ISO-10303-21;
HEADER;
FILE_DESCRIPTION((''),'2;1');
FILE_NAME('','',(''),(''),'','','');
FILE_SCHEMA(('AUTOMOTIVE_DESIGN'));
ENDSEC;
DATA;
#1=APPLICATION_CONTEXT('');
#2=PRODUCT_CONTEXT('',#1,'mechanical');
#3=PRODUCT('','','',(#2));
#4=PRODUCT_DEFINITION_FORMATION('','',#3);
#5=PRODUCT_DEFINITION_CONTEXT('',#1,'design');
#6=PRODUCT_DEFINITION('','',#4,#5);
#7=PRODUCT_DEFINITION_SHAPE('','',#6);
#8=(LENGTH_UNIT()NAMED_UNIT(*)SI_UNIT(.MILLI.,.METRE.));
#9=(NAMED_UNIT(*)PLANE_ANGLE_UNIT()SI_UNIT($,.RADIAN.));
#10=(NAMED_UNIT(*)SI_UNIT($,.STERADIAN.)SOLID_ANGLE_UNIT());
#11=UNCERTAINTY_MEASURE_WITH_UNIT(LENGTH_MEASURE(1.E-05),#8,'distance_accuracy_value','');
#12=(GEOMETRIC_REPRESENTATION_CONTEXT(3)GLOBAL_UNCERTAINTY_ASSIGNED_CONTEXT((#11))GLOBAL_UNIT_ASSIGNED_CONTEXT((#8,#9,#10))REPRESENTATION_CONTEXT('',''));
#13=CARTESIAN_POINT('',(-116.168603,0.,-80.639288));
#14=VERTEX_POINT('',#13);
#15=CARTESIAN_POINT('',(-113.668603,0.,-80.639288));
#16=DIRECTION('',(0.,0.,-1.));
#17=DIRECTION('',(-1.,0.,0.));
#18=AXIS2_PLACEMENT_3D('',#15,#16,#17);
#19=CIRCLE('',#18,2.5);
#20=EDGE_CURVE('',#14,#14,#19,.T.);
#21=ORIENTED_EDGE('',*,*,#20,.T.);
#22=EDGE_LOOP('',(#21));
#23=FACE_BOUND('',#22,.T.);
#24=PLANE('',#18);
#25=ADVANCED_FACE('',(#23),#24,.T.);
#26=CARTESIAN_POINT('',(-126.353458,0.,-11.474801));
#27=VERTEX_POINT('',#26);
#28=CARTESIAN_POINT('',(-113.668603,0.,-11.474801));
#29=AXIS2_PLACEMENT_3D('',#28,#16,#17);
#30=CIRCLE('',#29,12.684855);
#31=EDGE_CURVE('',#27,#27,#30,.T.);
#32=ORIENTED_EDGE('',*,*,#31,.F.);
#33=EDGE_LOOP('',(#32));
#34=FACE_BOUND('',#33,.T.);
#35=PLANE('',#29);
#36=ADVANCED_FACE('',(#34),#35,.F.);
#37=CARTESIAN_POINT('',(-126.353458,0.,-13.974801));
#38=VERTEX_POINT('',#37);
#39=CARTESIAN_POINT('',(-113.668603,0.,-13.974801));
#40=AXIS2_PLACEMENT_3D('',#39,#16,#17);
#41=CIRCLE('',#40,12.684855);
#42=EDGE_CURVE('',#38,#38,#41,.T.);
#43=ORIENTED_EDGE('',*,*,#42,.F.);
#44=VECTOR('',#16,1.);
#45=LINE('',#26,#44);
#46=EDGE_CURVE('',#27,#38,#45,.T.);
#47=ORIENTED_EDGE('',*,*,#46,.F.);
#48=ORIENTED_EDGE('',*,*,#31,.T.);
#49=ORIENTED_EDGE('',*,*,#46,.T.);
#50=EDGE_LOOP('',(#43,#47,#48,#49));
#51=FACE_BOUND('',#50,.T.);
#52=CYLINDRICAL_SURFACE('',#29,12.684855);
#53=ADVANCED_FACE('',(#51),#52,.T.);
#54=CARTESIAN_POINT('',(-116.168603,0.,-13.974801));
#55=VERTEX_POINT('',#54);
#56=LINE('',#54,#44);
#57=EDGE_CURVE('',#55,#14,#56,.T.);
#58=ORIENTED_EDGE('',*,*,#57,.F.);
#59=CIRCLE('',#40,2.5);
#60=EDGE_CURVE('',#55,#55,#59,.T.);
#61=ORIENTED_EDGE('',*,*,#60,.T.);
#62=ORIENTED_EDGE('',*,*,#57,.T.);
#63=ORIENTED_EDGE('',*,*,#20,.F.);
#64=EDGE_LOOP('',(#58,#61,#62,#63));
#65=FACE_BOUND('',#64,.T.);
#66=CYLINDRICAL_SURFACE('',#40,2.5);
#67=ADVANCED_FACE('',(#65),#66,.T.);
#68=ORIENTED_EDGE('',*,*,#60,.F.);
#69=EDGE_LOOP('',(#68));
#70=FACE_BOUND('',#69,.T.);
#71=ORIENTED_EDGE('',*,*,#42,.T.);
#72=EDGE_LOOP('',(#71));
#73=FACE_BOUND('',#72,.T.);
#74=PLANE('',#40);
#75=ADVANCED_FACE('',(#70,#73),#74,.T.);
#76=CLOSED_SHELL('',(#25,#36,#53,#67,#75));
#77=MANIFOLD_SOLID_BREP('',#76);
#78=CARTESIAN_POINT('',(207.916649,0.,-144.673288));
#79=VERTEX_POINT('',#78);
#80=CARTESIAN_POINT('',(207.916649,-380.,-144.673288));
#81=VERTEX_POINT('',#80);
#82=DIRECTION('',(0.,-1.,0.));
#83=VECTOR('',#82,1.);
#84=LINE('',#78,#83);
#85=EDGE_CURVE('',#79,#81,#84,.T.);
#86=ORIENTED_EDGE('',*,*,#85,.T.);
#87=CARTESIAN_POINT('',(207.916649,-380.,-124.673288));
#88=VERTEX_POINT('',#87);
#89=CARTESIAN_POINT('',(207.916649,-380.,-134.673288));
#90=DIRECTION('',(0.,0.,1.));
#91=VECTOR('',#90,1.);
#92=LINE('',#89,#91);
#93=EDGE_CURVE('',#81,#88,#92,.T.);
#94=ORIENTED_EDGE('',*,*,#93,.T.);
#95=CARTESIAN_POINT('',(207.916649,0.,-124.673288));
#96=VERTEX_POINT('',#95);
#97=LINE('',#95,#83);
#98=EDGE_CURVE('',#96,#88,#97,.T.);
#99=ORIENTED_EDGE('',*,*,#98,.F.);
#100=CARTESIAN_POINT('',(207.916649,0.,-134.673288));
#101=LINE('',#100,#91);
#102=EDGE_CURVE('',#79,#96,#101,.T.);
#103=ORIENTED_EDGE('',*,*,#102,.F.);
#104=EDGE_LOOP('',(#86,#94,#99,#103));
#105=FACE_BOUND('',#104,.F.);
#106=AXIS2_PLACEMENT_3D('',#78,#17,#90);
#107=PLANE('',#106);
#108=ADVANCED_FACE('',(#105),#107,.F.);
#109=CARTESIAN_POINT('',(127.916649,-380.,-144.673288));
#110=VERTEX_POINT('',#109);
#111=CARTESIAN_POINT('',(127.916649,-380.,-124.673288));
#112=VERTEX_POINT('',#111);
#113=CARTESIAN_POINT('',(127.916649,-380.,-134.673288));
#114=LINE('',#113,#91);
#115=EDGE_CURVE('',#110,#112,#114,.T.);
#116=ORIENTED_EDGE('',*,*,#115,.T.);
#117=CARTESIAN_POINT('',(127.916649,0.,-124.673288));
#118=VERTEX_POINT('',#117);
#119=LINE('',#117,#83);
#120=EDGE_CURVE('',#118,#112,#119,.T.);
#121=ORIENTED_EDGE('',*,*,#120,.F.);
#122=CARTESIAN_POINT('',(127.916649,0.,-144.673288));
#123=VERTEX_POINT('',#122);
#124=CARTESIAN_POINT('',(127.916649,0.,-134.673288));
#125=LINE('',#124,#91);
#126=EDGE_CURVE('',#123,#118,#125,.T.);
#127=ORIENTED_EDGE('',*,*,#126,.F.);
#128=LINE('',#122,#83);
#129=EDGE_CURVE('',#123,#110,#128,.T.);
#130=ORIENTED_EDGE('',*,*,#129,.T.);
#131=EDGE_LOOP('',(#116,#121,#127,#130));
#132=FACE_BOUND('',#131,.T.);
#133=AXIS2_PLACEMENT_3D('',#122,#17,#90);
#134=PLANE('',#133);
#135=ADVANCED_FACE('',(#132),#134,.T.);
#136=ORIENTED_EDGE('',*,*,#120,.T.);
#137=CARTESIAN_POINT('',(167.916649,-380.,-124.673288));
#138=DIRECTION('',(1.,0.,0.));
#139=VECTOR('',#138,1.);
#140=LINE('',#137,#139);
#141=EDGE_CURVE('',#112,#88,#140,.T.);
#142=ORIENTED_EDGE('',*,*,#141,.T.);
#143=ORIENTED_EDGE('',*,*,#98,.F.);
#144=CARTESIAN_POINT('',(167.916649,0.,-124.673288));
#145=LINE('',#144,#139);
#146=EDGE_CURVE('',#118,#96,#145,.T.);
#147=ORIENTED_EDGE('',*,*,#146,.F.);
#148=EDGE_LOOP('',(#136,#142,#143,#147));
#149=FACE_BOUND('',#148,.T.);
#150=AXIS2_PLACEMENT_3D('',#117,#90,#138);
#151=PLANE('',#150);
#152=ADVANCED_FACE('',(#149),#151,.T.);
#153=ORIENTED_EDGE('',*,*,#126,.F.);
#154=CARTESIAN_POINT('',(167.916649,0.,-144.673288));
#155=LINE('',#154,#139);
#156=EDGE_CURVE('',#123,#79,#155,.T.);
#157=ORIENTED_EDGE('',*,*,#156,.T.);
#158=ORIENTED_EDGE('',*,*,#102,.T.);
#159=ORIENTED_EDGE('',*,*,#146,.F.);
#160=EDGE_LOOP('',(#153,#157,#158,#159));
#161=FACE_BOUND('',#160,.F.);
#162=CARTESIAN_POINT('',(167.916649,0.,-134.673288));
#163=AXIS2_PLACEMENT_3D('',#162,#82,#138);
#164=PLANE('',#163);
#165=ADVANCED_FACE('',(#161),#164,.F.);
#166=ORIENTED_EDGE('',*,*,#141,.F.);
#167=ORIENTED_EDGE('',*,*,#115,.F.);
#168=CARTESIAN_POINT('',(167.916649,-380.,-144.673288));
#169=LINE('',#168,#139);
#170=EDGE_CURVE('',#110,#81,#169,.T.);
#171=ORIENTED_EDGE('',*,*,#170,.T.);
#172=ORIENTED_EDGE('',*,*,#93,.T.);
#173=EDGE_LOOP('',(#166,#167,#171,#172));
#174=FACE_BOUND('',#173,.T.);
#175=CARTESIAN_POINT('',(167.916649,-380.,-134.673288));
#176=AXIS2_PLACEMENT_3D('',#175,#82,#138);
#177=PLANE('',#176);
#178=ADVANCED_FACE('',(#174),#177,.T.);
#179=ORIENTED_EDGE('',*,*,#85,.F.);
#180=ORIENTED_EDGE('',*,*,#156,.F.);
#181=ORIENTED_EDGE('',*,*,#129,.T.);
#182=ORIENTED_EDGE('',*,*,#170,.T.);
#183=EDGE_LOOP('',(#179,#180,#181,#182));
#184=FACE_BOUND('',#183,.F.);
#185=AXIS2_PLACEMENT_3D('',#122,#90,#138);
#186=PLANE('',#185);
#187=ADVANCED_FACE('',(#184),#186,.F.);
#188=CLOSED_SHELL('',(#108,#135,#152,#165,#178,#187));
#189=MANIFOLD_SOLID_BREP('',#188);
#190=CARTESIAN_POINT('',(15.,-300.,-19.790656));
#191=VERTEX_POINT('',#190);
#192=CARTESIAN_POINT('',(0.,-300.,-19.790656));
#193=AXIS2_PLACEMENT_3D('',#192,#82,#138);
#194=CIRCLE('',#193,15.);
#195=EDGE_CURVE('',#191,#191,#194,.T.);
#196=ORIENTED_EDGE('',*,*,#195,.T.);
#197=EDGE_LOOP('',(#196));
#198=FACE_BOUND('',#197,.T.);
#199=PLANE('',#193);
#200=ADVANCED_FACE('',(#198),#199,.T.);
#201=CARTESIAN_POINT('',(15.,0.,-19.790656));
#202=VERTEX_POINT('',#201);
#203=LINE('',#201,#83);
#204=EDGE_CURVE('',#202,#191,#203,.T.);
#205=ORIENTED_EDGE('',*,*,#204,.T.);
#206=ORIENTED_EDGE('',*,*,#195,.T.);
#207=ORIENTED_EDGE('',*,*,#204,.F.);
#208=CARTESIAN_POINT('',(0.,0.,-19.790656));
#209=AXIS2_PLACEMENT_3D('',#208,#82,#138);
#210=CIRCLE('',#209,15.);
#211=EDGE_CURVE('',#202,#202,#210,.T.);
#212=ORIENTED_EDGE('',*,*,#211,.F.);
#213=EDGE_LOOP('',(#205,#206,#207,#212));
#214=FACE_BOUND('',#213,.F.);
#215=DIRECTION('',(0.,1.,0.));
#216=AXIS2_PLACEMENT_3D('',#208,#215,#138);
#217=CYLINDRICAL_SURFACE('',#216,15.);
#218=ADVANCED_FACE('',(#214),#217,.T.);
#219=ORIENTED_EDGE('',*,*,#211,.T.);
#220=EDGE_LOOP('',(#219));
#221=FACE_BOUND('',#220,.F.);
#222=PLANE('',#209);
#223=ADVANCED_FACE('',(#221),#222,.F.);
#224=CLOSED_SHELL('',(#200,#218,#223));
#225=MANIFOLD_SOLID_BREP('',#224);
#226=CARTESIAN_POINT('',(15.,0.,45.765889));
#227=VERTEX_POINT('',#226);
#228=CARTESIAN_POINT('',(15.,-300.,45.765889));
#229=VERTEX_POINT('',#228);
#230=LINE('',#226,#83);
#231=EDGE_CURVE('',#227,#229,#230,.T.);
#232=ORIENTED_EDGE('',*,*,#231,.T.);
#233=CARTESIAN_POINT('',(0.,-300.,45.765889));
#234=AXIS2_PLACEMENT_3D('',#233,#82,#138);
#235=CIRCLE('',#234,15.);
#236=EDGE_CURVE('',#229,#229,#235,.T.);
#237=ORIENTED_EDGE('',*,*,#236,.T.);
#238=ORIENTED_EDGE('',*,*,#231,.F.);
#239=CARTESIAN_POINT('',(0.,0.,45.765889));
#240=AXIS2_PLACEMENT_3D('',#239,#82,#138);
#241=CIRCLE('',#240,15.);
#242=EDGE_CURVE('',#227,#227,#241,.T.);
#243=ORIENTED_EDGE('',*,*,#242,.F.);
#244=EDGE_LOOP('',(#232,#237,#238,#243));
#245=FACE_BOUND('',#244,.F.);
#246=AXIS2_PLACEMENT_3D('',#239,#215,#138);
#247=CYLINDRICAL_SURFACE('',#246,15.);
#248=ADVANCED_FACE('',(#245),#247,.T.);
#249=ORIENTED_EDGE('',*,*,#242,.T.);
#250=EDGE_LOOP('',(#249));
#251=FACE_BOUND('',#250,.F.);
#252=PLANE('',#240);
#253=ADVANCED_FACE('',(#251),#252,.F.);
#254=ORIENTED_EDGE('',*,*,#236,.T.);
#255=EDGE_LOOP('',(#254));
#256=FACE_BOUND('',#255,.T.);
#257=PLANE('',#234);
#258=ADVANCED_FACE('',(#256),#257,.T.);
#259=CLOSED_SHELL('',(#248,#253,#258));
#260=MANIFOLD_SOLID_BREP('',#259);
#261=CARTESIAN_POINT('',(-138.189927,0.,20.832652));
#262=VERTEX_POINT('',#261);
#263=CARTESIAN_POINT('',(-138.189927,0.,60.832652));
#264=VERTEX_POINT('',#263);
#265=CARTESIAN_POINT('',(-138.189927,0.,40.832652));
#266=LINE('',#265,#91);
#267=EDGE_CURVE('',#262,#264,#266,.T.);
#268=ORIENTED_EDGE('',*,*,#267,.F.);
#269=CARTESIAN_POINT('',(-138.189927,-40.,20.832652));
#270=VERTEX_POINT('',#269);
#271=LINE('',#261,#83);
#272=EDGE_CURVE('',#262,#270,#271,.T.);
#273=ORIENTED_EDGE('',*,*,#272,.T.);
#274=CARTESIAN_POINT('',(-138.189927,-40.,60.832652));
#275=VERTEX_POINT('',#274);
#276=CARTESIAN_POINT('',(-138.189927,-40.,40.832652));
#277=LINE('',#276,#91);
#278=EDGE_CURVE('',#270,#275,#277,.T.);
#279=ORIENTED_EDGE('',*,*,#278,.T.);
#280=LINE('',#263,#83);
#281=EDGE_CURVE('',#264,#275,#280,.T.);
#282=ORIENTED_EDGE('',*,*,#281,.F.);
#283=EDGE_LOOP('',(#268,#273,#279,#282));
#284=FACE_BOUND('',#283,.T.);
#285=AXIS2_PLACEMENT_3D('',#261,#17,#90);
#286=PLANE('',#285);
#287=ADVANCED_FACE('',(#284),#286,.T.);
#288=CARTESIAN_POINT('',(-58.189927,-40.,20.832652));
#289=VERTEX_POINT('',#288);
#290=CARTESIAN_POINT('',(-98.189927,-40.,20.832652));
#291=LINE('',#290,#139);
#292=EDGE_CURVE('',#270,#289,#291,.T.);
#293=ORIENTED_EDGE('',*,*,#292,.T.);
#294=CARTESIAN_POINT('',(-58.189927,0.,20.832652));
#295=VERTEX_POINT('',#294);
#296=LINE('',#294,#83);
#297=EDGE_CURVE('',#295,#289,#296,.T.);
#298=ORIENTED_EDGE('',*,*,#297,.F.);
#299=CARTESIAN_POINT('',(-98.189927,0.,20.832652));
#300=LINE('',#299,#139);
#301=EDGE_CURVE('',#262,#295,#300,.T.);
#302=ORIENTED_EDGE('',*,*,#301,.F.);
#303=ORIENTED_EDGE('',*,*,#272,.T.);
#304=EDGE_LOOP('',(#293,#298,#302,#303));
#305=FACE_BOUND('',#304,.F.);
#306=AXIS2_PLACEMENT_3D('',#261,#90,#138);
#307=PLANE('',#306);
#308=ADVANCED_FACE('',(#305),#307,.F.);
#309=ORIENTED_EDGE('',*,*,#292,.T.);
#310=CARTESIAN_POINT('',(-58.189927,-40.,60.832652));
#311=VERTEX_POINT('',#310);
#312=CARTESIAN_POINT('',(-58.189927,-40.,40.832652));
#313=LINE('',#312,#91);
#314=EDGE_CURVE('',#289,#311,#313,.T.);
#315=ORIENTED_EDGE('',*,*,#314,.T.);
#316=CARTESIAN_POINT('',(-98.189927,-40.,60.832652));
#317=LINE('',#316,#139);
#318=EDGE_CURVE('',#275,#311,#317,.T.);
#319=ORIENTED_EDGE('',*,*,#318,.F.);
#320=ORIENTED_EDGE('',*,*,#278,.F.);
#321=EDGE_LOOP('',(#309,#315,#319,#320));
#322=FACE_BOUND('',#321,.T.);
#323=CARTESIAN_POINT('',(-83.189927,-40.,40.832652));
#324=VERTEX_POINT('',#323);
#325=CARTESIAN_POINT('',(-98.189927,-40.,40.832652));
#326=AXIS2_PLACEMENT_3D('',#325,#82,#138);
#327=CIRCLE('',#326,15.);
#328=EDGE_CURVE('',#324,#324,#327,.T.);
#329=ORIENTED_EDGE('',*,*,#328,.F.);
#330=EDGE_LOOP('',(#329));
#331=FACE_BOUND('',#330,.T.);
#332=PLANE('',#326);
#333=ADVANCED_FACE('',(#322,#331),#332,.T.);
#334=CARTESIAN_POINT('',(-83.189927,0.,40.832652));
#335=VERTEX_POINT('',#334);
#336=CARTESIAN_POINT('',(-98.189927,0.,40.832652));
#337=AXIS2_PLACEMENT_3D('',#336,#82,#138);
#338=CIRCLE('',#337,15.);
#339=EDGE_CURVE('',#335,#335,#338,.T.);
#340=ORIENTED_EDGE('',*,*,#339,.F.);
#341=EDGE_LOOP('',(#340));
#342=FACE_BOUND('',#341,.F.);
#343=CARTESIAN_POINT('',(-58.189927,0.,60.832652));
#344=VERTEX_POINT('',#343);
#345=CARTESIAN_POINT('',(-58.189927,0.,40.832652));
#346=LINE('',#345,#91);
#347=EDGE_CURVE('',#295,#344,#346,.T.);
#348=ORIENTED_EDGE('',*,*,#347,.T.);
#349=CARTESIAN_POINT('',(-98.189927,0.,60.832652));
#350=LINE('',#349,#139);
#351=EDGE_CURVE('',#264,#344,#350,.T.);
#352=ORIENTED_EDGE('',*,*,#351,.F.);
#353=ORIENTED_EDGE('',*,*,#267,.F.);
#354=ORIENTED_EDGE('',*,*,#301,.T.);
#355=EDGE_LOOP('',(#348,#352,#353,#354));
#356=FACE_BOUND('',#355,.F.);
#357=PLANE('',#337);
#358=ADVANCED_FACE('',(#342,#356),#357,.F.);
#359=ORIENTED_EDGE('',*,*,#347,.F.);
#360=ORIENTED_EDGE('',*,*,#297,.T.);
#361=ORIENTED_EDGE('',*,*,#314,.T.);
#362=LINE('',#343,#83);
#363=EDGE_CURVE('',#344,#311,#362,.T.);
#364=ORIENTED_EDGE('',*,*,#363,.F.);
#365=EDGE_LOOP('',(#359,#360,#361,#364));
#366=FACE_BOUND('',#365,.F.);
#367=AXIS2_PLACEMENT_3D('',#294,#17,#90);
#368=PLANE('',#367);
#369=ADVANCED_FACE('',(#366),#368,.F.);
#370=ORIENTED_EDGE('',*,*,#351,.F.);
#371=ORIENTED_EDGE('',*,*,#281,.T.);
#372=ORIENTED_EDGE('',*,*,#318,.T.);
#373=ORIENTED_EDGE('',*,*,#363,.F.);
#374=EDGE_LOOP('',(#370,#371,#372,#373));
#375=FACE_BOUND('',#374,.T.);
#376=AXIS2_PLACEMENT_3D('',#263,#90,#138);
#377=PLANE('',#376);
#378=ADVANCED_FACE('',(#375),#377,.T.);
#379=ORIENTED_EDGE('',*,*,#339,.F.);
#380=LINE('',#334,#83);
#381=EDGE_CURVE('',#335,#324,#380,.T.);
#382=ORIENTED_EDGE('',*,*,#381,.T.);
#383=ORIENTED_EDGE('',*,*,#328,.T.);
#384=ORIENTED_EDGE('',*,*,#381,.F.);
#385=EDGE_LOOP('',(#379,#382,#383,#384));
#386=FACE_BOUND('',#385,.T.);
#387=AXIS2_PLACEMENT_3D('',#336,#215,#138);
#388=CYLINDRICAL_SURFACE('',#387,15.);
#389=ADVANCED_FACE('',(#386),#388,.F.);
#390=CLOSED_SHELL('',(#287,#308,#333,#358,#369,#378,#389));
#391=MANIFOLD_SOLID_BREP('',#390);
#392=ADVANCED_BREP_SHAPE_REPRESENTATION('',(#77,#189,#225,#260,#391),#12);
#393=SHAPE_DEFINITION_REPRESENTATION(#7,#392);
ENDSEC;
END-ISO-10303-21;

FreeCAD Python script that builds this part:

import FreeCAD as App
import Part
import Sketcher
Q = App.Units.Quantity

doc = App.newDocument("Part")
body = doc.addObject("PartDesign::Body", "Body")

# Sketch on XZ plane
sketch1 = body.newObject("Sketcher::SketchObject", "Sketch")
sketch1.AttachmentSupport = (doc.getObject("XZ_Plane"), [""])
sketch1.MapMode = "FlatFace"
sketch1.addGeometry(Part.LineSegment(App.Vector(-138.189927, 60.832652, 0), App.Vector(-138.189927, 20.832652, 0)), False)
sketch1.addGeometry(Part.LineSegment(App.Vector(-138.189927, 20.832652, 0), App.Vector(-58.189927, 20.832652, 0)), False)
sketch1.addGeometry(Part.LineSegment(App.Vector(-58.189927, 20.832652, 0), App.Vector(-58.189927, 60.832652, 0)), False)
sketch1.addGeometry(Part.LineSegment(App.Vector(-58.189927, 60.832652, 0), App.Vector(-138.189927, 60.832652, 0)), False)
sketch1.addGeometry(Part.Circle(App.Vector(-98.189927, 40.832652, 0), App.Vector(0, 0, 1), 15), False)
sketch1.addConstraint(Sketcher.Constraint("Coincident", 0, 2, 1, 1))
sketch1.addConstraint(Sketcher.Constraint("Coincident", 1, 2, 2, 1))
sketch1.addConstraint(Sketcher.Constraint("Coincident", 2, 2, 3, 1))
sketch1.addConstraint(Sketcher.Constraint("Coincident", 3, 2, 0, 1))
sketch1.addConstraint(Sketcher.Constraint("Vertical", 0))
sketch1.addConstraint(Sketcher.Constraint("Horizontal", 1))
sketch1.addConstraint(Sketcher.Constraint("Vertical", 2))
sketch1.addConstraint(Sketcher.Constraint("Horizontal", 3))
sketch1.addConstraint(Sketcher.Constraint("Diameter", 4, Q("30 mm")))
sketch1.addConstraint(Sketcher.Constraint("DistanceX", 1, 1, 1, 2, Q("80 mm")))
sketch1.addConstraint(Sketcher.Constraint("DistanceY", 0, 2, 0, 1, Q("40 mm")))
sketch1.addConstraint(Sketcher.Constraint("DistanceX", 0, 2, 4, 3, Q("40 mm")))
sketch1.addConstraint(Sketcher.Constraint("DistanceY", 0, 2, 4, 3, Q("20 mm")))
sketch1.addConstraint(Sketcher.Constraint("DistanceY", -1, 1, 0, 2, Q("20.832652 mm")))
sketch1.addConstraint(Sketcher.Constraint("DistanceX", 4, 3, -1, 1, Q("98.189927 mm")))
pad1 = body.newObject("PartDesign::Pad", "Pad")
pad1.Profile = sketch1
pad1.Length = 40
body2 = doc.addObject("PartDesign::Body", "Body001")
body2.AllowCompound = True

# Sketch on XZ plane
sketch2 = body2.newObject("Sketcher::SketchObject", "Sketch001")
sketch2.AttachmentSupport = (doc.getObject("XZ_Plane001"), [""])
sketch2.MapMode = "FlatFace"
sketch2.addGeometry(Part.Circle(App.Vector(0, 45.765889, 0), App.Vector(0, 0, 1), 15), False)
sketch2.addGeometry(Part.Circle(App.Vector(0, -19.790656, 0), App.Vector(0, 0, 1), 15), False)
sketch2.addConstraint(Sketcher.Constraint("Equal", 0, 1))
sketch2.addConstraint(Sketcher.Constraint("PointOnObject", 0, 3, -2))
sketch2.addConstraint(Sketcher.Constraint("PointOnObject", 1, 3, -2))
sketch2.addConstraint(Sketcher.Constraint("Diameter", 0, Q("30 mm")))
sketch2.addConstraint(Sketcher.Constraint("DistanceY", -1, 1, 0, 3, Q("45.765889 mm")))
sketch2.addConstraint(Sketcher.Constraint("DistanceY", 1, 3, -1, 1, Q("19.790656 mm")))
pad2 = body2.newObject("PartDesign::Pad", "Pad001")
pad2.Profile = sketch2
pad2.Length = 300
body3 = doc.addObject("PartDesign::Body", "Body002")

# Sketch on XZ plane
sketch3 = body3.newObject("Sketcher::SketchObject", "Sketch002")
sketch3.AttachmentSupport = (doc.getObject("XZ_Plane002"), [""])
sketch3.MapMode = "FlatFace"
sketch3.addGeometry(Part.LineSegment(App.Vector(-113.668603, -80.639288, 0), App.Vector(-113.668603, -11.474801, 0)), False)
sketch3.addGeometry(Part.LineSegment(App.Vector(-113.668603, -11.474801, 0), App.Vector(-126.353458, -11.474801, 0)), False)
sketch3.addGeometry(Part.LineSegment(App.Vector(-126.353458, -11.474801, 0), App.Vector(-126.353458, -13.974801, 0)), False)
sketch3.addGeometry(Part.LineSegment(App.Vector(-126.353458, -13.974801, 0), App.Vector(-116.168603, -13.974801, 0)), False)
sketch3.addGeometry(Part.LineSegment(App.Vector(-116.168603, -13.974801, 0), App.Vector(-116.168603, -80.639288, 0)), False)
sketch3.addGeometry(Part.LineSegment(App.Vector(-116.168603, -80.639288, 0), App.Vector(-113.668603, -80.639288, 0)), False)
sketch3.addGeometry(Part.LineSegment(App.Vector(-113.668603, -11.474801, 0), App.Vector(-113.668603, -80.639288, 0)), True)  # axis
sketch3.addConstraint(Sketcher.Constraint("Coincident", 0, 2, 1, 1))
sketch3.addConstraint(Sketcher.Constraint("Coincident", 1, 2, 2, 1))
sketch3.addConstraint(Sketcher.Constraint("Coincident", 2, 2, 3, 1))
sketch3.addConstraint(Sketcher.Constraint("Coincident", 3, 2, 4, 1))
sketch3.addConstraint(Sketcher.Constraint("Coincident", 4, 2, 5, 1))
sketch3.addConstraint(Sketcher.Constraint("Coincident", 5, 2, 0, 1))
sketch3.addConstraint(Sketcher.Constraint("Vertical", 0))
sketch3.addConstraint(Sketcher.Constraint("Horizontal", 1))
sketch3.addConstraint(Sketcher.Constraint("Vertical", 2))
sketch3.addConstraint(Sketcher.Constraint("Horizontal", 3))
sketch3.addConstraint(Sketcher.Constraint("Vertical", 4))
sketch3.addConstraint(Sketcher.Constraint("Horizontal", 5))
sketch3.addConstraint(Sketcher.Constraint("Vertical", 6))
sketch3.addConstraint(Sketcher.Constraint("Coincident", 6, 1, 0, 2))
sketch3.addConstraint(Sketcher.Constraint("Horizontal", 4, 2, 6, 2))
sketch3.addConstraint(Sketcher.Constraint("Equal", 5, 2))
sketch3.addConstraint(Sketcher.Constraint("DistanceX", 5, 1, 5, 2, Q("2.5 mm")))
sketch3.addConstraint(Sketcher.Constraint("DistanceY", 0, 2, -1, 1, Q("11.474801 mm")))
sketch3.addConstraint(Sketcher.Constraint("DistanceX", 1, 2, 1, 1, Q("12.684855 mm")))
sketch3.addConstraint(Sketcher.Constraint("DistanceY", 0, 1, 0, 2, Q("69.164487 mm")))
sketch3.addConstraint(Sketcher.Constraint("DistanceX", 1, 2, -1, 1, Q("126.353458 mm")))
revolution = body3.newObject("PartDesign::Revolution", "Revolution")
revolution.Profile = sketch3
revolution.ReferenceAxis = (sketch3, ["Axis0"])
revolution.Angle = 360
body4 = doc.addObject("PartDesign::Body", "Body003")

# Sketch on XZ plane
sketch4 = body4.newObject("Sketcher::SketchObject", "Sketch003")
sketch4.AttachmentSupport = (doc.getObject("XZ_Plane003"), [""])
sketch4.MapMode = "FlatFace"
sketch4.addGeometry(Part.LineSegment(App.Vector(127.916649, -124.673288, 0), App.Vector(127.916649, -144.673288, 0)), False)
sketch4.addGeometry(Part.LineSegment(App.Vector(127.916649, -144.673288, 0), App.Vector(207.916649, -144.673288, 0)), False)
sketch4.addGeometry(Part.LineSegment(App.Vector(207.916649, -144.673288, 0), App.Vector(207.916649, -124.673288, 0)), False)
sketch4.addGeometry(Part.LineSegment(App.Vector(207.916649, -124.673288, 0), App.Vector(127.916649, -124.673288, 0)), False)
sketch4.addConstraint(Sketcher.Constraint("Coincident", 0, 2, 1, 1))
sketch4.addConstraint(Sketcher.Constraint("Coincident", 1, 2, 2, 1))
sketch4.addConstraint(Sketcher.Constraint("Coincident", 2, 2, 3, 1))
sketch4.addConstraint(Sketcher.Constraint("Coincident", 3, 2, 0, 1))
sketch4.addConstraint(Sketcher.Constraint("Vertical", 0))
sketch4.addConstraint(Sketcher.Constraint("Horizontal", 1))
sketch4.addConstraint(Sketcher.Constraint("Vertical", 2))
sketch4.addConstraint(Sketcher.Constraint("Horizontal", 3))
sketch4.addConstraint(Sketcher.Constraint("DistanceX", 1, 1, 1, 2, Q("80 mm")))
sketch4.addConstraint(Sketcher.Constraint("DistanceY", 0, 2, 0, 1, Q("20 mm")))
sketch4.addConstraint(Sketcher.Constraint("DistanceX", -1, 1, 0, 2, Q("127.916649 mm")))
sketch4.addConstraint(Sketcher.Constraint("DistanceY", 0, 2, -1, 1, Q("144.673288 mm")))
pad3 = body4.newObject("PartDesign::Pad", "Pad002")
pad3.Profile = sketch4
pad3.Length = 380

doc.recompute()
